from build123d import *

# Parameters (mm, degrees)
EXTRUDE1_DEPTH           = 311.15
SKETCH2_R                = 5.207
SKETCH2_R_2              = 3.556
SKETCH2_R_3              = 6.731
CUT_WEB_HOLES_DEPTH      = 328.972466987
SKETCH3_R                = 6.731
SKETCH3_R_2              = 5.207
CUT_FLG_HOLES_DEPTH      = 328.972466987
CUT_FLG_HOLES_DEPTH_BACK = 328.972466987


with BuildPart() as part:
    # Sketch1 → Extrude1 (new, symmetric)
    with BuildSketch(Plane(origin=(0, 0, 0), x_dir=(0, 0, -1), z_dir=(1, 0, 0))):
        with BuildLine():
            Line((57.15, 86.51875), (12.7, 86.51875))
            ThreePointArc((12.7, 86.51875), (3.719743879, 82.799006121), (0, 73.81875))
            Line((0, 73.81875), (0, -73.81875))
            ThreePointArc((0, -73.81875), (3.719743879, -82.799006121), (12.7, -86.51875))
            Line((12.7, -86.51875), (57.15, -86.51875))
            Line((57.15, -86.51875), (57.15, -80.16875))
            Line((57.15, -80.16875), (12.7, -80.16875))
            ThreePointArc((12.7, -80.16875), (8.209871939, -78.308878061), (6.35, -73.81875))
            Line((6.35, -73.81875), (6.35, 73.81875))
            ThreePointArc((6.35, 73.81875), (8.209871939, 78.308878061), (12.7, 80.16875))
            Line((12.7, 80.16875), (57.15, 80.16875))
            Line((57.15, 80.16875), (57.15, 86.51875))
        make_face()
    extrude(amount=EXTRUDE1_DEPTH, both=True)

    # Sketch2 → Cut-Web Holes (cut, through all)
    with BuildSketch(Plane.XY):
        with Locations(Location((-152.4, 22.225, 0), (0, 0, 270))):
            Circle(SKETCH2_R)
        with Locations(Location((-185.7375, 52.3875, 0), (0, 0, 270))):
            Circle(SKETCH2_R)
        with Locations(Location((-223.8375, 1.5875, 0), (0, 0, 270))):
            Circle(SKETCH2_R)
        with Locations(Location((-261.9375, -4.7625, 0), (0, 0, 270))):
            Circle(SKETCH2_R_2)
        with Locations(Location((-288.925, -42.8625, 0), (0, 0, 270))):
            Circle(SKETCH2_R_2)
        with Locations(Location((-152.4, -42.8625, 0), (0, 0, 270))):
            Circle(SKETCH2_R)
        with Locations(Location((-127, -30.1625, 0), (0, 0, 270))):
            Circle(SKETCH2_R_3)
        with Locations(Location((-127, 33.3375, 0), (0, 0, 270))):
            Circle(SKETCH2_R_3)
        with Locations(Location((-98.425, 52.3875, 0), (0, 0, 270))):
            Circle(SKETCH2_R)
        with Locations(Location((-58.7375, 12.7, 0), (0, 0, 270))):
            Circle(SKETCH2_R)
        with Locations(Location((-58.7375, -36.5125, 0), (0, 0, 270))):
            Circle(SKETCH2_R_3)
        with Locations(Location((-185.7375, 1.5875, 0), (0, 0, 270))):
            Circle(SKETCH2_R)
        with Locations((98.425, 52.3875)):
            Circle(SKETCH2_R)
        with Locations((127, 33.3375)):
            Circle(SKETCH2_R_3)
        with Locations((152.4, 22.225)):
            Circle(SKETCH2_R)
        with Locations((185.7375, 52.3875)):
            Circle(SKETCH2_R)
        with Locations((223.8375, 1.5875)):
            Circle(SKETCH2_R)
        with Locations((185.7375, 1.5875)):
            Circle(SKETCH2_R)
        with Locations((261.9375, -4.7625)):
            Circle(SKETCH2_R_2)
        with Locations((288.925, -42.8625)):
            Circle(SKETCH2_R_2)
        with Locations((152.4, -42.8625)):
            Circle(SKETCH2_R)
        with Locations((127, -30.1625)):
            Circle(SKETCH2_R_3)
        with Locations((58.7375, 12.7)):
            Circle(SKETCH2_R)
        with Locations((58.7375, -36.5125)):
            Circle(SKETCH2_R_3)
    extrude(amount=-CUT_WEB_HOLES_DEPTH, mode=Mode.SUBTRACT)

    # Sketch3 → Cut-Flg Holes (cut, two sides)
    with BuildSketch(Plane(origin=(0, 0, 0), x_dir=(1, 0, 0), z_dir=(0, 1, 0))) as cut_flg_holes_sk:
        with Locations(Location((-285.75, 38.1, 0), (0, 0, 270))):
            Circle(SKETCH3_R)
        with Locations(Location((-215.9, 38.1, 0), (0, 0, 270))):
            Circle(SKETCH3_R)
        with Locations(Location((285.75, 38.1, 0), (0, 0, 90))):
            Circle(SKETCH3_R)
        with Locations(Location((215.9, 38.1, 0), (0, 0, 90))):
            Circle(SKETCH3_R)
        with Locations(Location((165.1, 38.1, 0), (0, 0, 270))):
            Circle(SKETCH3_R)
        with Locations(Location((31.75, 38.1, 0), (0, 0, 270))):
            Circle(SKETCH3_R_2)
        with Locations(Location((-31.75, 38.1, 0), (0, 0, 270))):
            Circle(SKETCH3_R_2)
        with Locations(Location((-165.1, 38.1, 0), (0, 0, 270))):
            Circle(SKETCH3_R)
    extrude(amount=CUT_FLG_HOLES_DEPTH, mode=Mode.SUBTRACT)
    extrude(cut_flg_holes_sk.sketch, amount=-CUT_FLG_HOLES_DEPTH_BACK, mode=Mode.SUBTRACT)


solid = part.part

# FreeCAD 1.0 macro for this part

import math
import FreeCAD as App
import Part
import Sketcher

V = App.Vector
Q = App.Units.Quantity

doc = App.newDocument("Part")
params = doc.addObject("Spreadsheet::Sheet", "Params")
for row, (alias, value) in enumerate([
    ("sketch1_radius", "0.5 in"),
    ("sketch1_radius2", "0.25 in"),
    ("sketch1_width", "5.8125 in"),
    ("pad1_length", "24.5 in"),
    ("sketch2_diameter", "0.41 in"),
    ("sketch2_diameter2", "0.28 in"),
    ("sketch2_diameter3", "0.53 in"),
    ("sketch3_diameter", "0.53 in"),
    ("sketch3_diameter2", "0.41 in"),
], start=1):
    params.set(f"A{row}", alias)
    params.set(f"B{row}", "=" + value)
    params.setAlias(f"B{row}", alias)

body = doc.addObject("PartDesign::Body", "Body")

# Sketch on YZ plane
sketch1 = body.newObject("Sketcher::SketchObject", "Sketch")
sketch1.AttachmentSupport = (doc.getObject("YZ_Plane"), [""])
sketch1.MapMode = "FlatFace"
sketch1.addGeometry(Part.LineSegment(V(87, -57, 0), V(87, -13, 0)), False)
sketch1.addGeometry(Part.ArcOfCircle(Part.Circle(V(74, -13, 0), V(0, 0, 1), 13), math.radians(0), math.radians(90)), False)
sketch1.addGeometry(Part.LineSegment(V(74, 0, 0), V(-74, 0, 0)), False)
sketch1.addGeometry(Part.ArcOfCircle(Part.Circle(V(-74, -13, 0), V(0, 0, 1), 13), math.radians(90), math.radians(180)), False)
sketch1.addGeometry(Part.LineSegment(V(-87, -13, 0), V(-87, -57, 0)), False)
sketch1.addGeometry(Part.LineSegment(V(-87, -57, 0), V(-80, -57, 0)), False)
sketch1.addGeometry(Part.LineSegment(V(-80, -57, 0), V(-80, -13, 0)), False)
sketch1.addGeometry(Part.ArcOfCircle(Part.Circle(V(-74, -13, 0), V(0, 0, 1), 6), math.radians(90), math.radians(180)), False)
sketch1.addGeometry(Part.LineSegment(V(-74, -6, 0), V(74, -6, 0)), False)
sketch1.addGeometry(Part.ArcOfCircle(Part.Circle(V(74, -13, 0), V(0, 0, 1), 6), math.radians(0), math.radians(90)), False)
sketch1.addGeometry(Part.LineSegment(V(80, -13, 0), V(80, -57, 0)), False)
sketch1.addGeometry(Part.LineSegment(V(80, -57, 0), V(87, -57, 0)), False)
sketch1.addConstraint(Sketcher.Constraint("Tangent", 0, 2, 1, 1))
sketch1.addConstraint(Sketcher.Constraint("Tangent", 1, 2, 2, 1))
sketch1.addConstraint(Sketcher.Constraint("Tangent", 2, 2, 3, 1))
sketch1.addConstraint(Sketcher.Constraint("Tangent", 3, 2, 4, 1))
sketch1.addConstraint(Sketcher.Constraint("Coincident", 4, 2, 5, 1))
sketch1.addConstraint(Sketcher.Constraint("Coincident", 5, 2, 6, 1))
sketch1.addConstraint(Sketcher.Constraint("Tangent", 6, 2, 7, 2))
sketch1.addConstraint(Sketcher.Constraint("Tangent", 7, 1, 8, 1))
sketch1.addConstraint(Sketcher.Constraint("Tangent", 8, 2, 9, 2))
sketch1.addConstraint(Sketcher.Constraint("Tangent", 9, 1, 10, 1))
sketch1.addConstraint(Sketcher.Constraint("Coincident", 10, 2, 11, 1))
sketch1.addConstraint(Sketcher.Constraint("Coincident", 11, 2, 0, 1))
sketch1.addConstraint(Sketcher.Constraint("Vertical", 0))
sketch1.addConstraint(Sketcher.Constraint("Horizontal", 2))
sketch1.addConstraint(Sketcher.Constraint("Vertical", 4))
sketch1.addConstraint(Sketcher.Constraint("Horizontal", 5))
sketch1.addConstraint(Sketcher.Constraint("Vertical", 6))
sketch1.addConstraint(Sketcher.Constraint("Horizontal", 8))
sketch1.addConstraint(Sketcher.Constraint("Vertical", 10))
sketch1.addConstraint(Sketcher.Constraint("Horizontal", 11))
sketch1.addConstraint(Sketcher.Constraint("Coincident", 7, 3, 3, 3))
sketch1.addConstraint(Sketcher.Constraint("Coincident", 9, 3, 1, 3))
sketch1.addConstraint(Sketcher.Constraint("Equal", 1, 3))
sketch1.addConstraint(Sketcher.Constraint("Symmetric", 1, 2, 2, 2, -1, 1))
sketch1.addConstraint(Sketcher.Constraint("Horizontal", 5, 2, 10, 2))
sketch1.addConstraint(Sketcher.Constraint("Radius", 1, Q("0.5 in")))
sketch1.addConstraint(Sketcher.Constraint("Radius", 7, Q("0.25 in")))
sketch1.addConstraint(Sketcher.Constraint("DistanceY", 10, 2, 8, 2, Q("2 in")))
sketch1.addConstraint(Sketcher.Constraint("DistanceX", 2, 2, 2, 1, Q("5.8125 in")))
sketch1.setExpression("Constraints[25]", "Params.sketch1_radius")
sketch1.setExpression("Constraints[26]", "Params.sketch1_radius2")
sketch1.setExpression("Constraints[28]", "Params.sketch1_width")
pad1 = body.newObject("PartDesign::Pad", "Pad")
pad1.Profile = sketch1
pad1.setExpression("Length", "Params.pad1_length")
pad1.Midplane = True

# Sketch on XY plane
sketch2 = body.newObject("Sketcher::SketchObject", "Sketch001")
sketch2.AttachmentSupport = (doc.getObject("XY_Plane"), [""])
sketch2.MapMode = "FlatFace"
sketch2.addGeometry(Part.Circle(V(-152.4, 22.2, 0), V(0, 0, 1), 5.2), False)
sketch2.addGeometry(Part.Circle(V(-185.7, 52.4, 0), V(0, 0, 1), 5.2), False)
sketch2.addGeometry(Part.Circle(V(-223.8, 1.6, 0), V(0, 0, 1), 5.2), False)
sketch2.addGeometry(Part.Circle(V(-261.9, -4.8, 0), V(0, 0, 1), 3.6), False)
sketch2.addGeometry(Part.Circle(V(-288.9, -42.9, 0), V(0, 0, 1), 3.6), False)
sketch2.addGeometry(Part.Circle(V(-152.4, -42.9, 0), V(0, 0, 1), 5.2), False)
sketch2.addGeometry(Part.Circle(V(-127, -30.2, 0), V(0, 0, 1), 6.7), False)
sketch2.addGeometry(Part.Circle(V(-127, 33.3, 0), V(0, 0, 1), 6.7), False)
sketch2.addGeometry(Part.Circle(V(-98.4, 52.4, 0), V(0, 0, 1), 5.2), False)
sketch2.addGeometry(Part.Circle(V(-58.7, 12.7, 0), V(0, 0, 1), 5.2), False)
sketch2.addGeometry(Part.Circle(V(-58.7, -36.5, 0), V(0, 0, 1), 6.7), False)
sketch2.addGeometry(Part.Circle(V(-185.7, 1.6, 0), V(0, 0, 1), 5.2), False)
sketch2.addGeometry(Part.Circle(V(98.4, 52.4, 0), V(0, 0, 1), 5.2), False)
sketch2.addGeometry(Part.Circle(V(127, 33.3, 0), V(0, 0, 1), 6.7), False)
sketch2.addGeometry(Part.Circle(V(152.4, 22.2, 0), V(0, 0, 1), 5.2), False)
sketch2.addGeometry(Part.Circle(V(185.7, 52.4, 0), V(0, 0, 1), 5.2), False)
sketch2.addGeometry(Part.Circle(V(223.8, 1.6, 0), V(0, 0, 1), 5.2), False)
sketch2.addGeometry(Part.Circle(V(185.7, 1.6, 0), V(0, 0, 1), 5.2), False)
sketch2.addGeometry(Part.Circle(V(261.9, -4.8, 0), V(0, 0, 1), 3.6), False)
sketch2.addGeometry(Part.Circle(V(288.9, -42.9, 0), V(0, 0, 1), 3.6), False)
sketch2.addGeometry(Part.Circle(V(152.4, -42.9, 0), V(0, 0, 1), 5.2), False)
sketch2.addGeometry(Part.Circle(V(127, -30.2, 0), V(0, 0, 1), 6.7), False)
sketch2.addGeometry(Part.Circle(V(58.7, 12.7, 0), V(0, 0, 1), 5.2), False)
sketch2.addGeometry(Part.Circle(V(58.7, -36.5, 0), V(0, 0, 1), 6.7), False)
sketch2.addConstraint(Sketcher.Constraint("Equal", 0, 1))
sketch2.addConstraint(Sketcher.Constraint("Equal", 1, 2))
sketch2.addConstraint(Sketcher.Constraint("Equal", 3, 4))
sketch2.addConstraint(Sketcher.Constraint("Equal", 2, 5))
sketch2.addConstraint(Sketcher.Constraint("Equal", 6, 7))
sketch2.addConstraint(Sketcher.Constraint("Equal", 5, 8))
sketch2.addConstraint(Sketcher.Constraint("Equal", 8, 9))
sketch2.addConstraint(Sketcher.Constraint("Equal", 7, 10))
sketch2.addConstraint(Sketcher.Constraint("Equal", 9, 11))
sketch2.addConstraint(Sketcher.Constraint("Equal", 11, 12))
sketch2.addConstraint(Sketcher.Constraint("Equal", 10, 13))
sketch2.addConstraint(Sketcher.Constraint("Equal", 12, 14))
sketch2.addConstraint(Sketcher.Constraint("Equal", 14, 15))
sketch2.addConstraint(Sketcher.Constraint("Equal", 15, 16))
sketch2.addConstraint(Sketcher.Constraint("Equal", 16, 17))
sketch2.addConstraint(Sketcher.Constraint("Equal", 4, 18))
sketch2.addConstraint(Sketcher.Constraint("Equal", 18, 19))
sketch2.addConstraint(Sketcher.Constraint("Equal", 17, 20))
sketch2.addConstraint(Sketcher.Constraint("Equal", 13, 21))
sketch2.addConstraint(Sketcher.Constraint("Equal", 20, 22))
sketch2.addConstraint(Sketcher.Constraint("Equal", 21, 23))
sketch2.addConstraint(Sketcher.Constraint("Symmetric", 8, 3, 12, 3, -2))
sketch2.addConstraint(Sketcher.Constraint("Symmetric", 7, 3, 13, 3, -2))
sketch2.addConstraint(Sketcher.Constraint("Symmetric", 0, 3, 14, 3, -2))
sketch2.addConstraint(Sketcher.Constraint("Symmetric", 1, 3, 15, 3, -2))
sketch2.addConstraint(Sketcher.Constraint("Symmetric", 2, 3, 16, 3, -2))
sketch2.addConstraint(Sketcher.Constraint("Symmetric", 11, 3, 17, 3, -2))
sketch2.addConstraint(Sketcher.Constraint("Symmetric", 3, 3, 18, 3, -2))
sketch2.addConstraint(Sketcher.Constraint("Symmetric", 4, 3, 19, 3, -2))
sketch2.addConstraint(Sketcher.Constraint("Symmetric", 5, 3, 20, 3, -2))
sketch2.addConstraint(Sketcher.Constraint("Symmetric", 6, 3, 21, 3, -2))
sketch2.addConstraint(Sketcher.Constraint("Symmetric", 9, 3, 22, 3, -2))
sketch2.addConstraint(Sketcher.Constraint("Symmetric", 10, 3, 23, 3, -2))
sketch2.addConstraint(Sketcher.Constraint("Horizontal", 4, 3, 5, 3))
sketch2.addConstraint(Sketcher.Constraint("Horizontal", 1, 3, 8, 3))
sketch2.addConstraint(Sketcher.Constraint("Horizontal", 2, 3, 11, 3))
sketch2.addConstraint(Sketcher.Constraint("Vertical", 0, 3, 5, 3))
sketch2.addConstraint(Sketcher.Constraint("Vertical", 6, 3, 7, 3))
sketch2.addConstraint(Sketcher.Constraint("Vertical", 9, 3, 10, 3))
sketch2.addConstraint(Sketcher.Constraint("Vertical", 1, 3, 11, 3))
sketch2.addConstraint(Sketcher.Constraint("Diameter", 0, Q("0.41 in")))
sketch2.addConstraint(Sketcher.Constraint("Diameter", 3, Q("0.28 in")))
sketch2.addConstraint(Sketcher.Constraint("Diameter", 6, Q("0.53 in")))
sketch2.addConstraint(Sketcher.Constraint("DistanceX", 0, 3, -1, 1, Q("6 in")))
sketch2.addConstraint(Sketcher.Constraint("DistanceX", 6, 3, -1, 1, Q("5 in")))
sketch2.addConstraint(Sketcher.Constraint("DistanceY", 2, 3, 1, 3, Q("2 in")))
sketch2.addConstraint(Sketcher.Constraint("DistanceX", 3, 3, 1, 3, Q("3 in")))
sketch2.addConstraint(Sketcher.Constraint("DistanceY", 6, 3, 3, 3, Q("1 in")))
sketch2.addConstraint(Sketcher.Constraint("DistanceY", 5, 3, 7, 3, Q("3 in")))
sketch2.addConstraint(Sketcher.Constraint("DistanceY", -1, 1, 9, 3, Q("0.5 in")))
sketch2.addConstraint(Sketcher.Constraint("DistanceX", 2, 3, 1, 3, Q("1.5 in")))
sketch2.addConstraint(Sketcher.Constraint("DistanceY", 4, 3, 3, 3, Q("1.5 in")))
sketch2.addConstraint(Sketcher.Constraint("DistanceY", 10, 3, 8, 3, Q("3.5 in")))
sketch2.addConstraint(Sketcher.Constraint("DistanceY", 3, 3, 2, 3, Q("0.25 in")))
sketch2.addConstraint(Sketcher.Constraint("DistanceX", 8, 3, 12, 3, Q("7.75 in")))
sketch2.addConstraint(Sketcher.Constraint("DistanceY", -1, 1, 0, 3, Q("0.875 in")))
sketch2.addConstraint(Sketcher.Constraint("DistanceX", 1, 3, -1, 1, Q("7.3125 in")))
sketch2.addConstraint(Sketcher.Constraint("DistanceY", -1, 1, 1, 3, Q("2.0625 in")))
sketch2.addConstraint(Sketcher.Constraint("DistanceX", 4, 3, -1, 1, Q("11.375 in")))
sketch2.addConstraint(Sketcher.Constraint("DistanceX", 9, 3, -1, 1, Q("2.3125 in")))
sketch2.setExpression("Constraints[40]", "Params.sketch2_diameter")
sketch2.setExpression("Constraints[41]", "Params.sketch2_diameter2")
sketch2.setExpression("Constraints[42]", "Params.sketch2_diameter3")
pocket1 = body.newObject("PartDesign::Pocket", "Pocket")
pocket1.Profile = sketch2
pocket1.Type = "ThroughAll"

# Sketch on XZ plane
sketch3 = body.newObject("Sketcher::SketchObject", "Sketch002")
sketch3.AttachmentSupport = (doc.getObject("XZ_Plane"), [""])
sketch3.MapMode = "FlatFace"
sketch3.addGeometry(Part.Circle(V(-286, -38, 0), V(0, 0, 1), 7), False)
sketch3.addGeometry(Part.Circle(V(-216, -38, 0), V(0, 0, 1), 7), False)
sketch3.addGeometry(Part.Circle(V(286, -38, 0), V(0, 0, 1), 7), False)
sketch3.addGeometry(Part.Circle(V(216, -38, 0), V(0, 0, 1), 7), False)
sketch3.addGeometry(Part.Circle(V(165, -38, 0), V(0, 0, 1), 7), False)
sketch3.addGeometry(Part.Circle(V(32, -38, 0), V(0, 0, 1), 5), False)
sketch3.addGeometry(Part.Circle(V(-32, -38, 0), V(0, 0, 1), 5), False)
sketch3.addGeometry(Part.Circle(V(-165, -38, 0), V(0, 0, 1), 7), False)
sketch3.addConstraint(Sketcher.Constraint("Equal", 0, 1))
sketch3.addConstraint(Sketcher.Constraint("Equal", 1, 2))
sketch3.addConstraint(Sketcher.Constraint("Equal", 2, 3))
sketch3.addConstraint(Sketcher.Constraint("Equal", 3, 4))
sketch3.addConstraint(Sketcher.Constraint("Equal", 5, 6))
sketch3.addConstraint(Sketcher.Constraint("Equal", 4, 7))
sketch3.addConstraint(Sketcher.Constraint("Symmetric", 0, 3, 2, 3, -2))
sketch3.addConstraint(Sketcher.Constraint("Symmetric", 1, 3, 3, 3, -2))
sketch3.addConstraint(Sketcher.Constraint("Symmetric", 5, 3, 6, 3, -2))
sketch3.addConstraint(Sketcher.Constraint("Symmetric", 4, 3, 7, 3, -2))
sketch3.addConstraint(Sketcher.Constraint("Horizontal", 0, 3, 1, 3))
sketch3.addConstraint(Sketcher.Constraint("Horizontal", 3, 3, 4, 3))
sketch3.addConstraint(Sketcher.Constraint("Horizontal", 4, 3, 5, 3))
sketch3.addConstraint(Sketcher.Constraint("Diameter", 0, Q("0.53 in")))
sketch3.addConstraint(Sketcher.Constraint("Diameter", 5, Q("0.41 in")))
sketch3.addConstraint(Sketcher.Constraint("DistanceX", 1, 3, 3, 3, Q("17 in")))
sketch3.addConstraint(Sketcher.Constraint("DistanceX", 4, 3, 3, 3, Q("2 in")))
sketch3.addConstraint(Sketcher.Constraint("DistanceX", 5, 3, 2, 3, Q("10 in")))
sketch3.addConstraint(Sketcher.Constraint("DistanceY", 0, 3, -1, 1, Q("1.5 in")))
sketch3.addConstraint(Sketcher.Constraint("DistanceX", 0, 3, 2, 3, Q("22.5 in")))
sketch3.setExpression("Constraints[13]", "Params.sketch3_diameter")
sketch3.setExpression("Constraints[14]", "Params.sketch3_diameter2")
pocket2 = body.newObject("PartDesign::Pocket", "Pocket001")
pocket2.Profile = sketch3
pocket2.Type = "ThroughAll"
pocket2.Midplane = True

doc.recompute()
